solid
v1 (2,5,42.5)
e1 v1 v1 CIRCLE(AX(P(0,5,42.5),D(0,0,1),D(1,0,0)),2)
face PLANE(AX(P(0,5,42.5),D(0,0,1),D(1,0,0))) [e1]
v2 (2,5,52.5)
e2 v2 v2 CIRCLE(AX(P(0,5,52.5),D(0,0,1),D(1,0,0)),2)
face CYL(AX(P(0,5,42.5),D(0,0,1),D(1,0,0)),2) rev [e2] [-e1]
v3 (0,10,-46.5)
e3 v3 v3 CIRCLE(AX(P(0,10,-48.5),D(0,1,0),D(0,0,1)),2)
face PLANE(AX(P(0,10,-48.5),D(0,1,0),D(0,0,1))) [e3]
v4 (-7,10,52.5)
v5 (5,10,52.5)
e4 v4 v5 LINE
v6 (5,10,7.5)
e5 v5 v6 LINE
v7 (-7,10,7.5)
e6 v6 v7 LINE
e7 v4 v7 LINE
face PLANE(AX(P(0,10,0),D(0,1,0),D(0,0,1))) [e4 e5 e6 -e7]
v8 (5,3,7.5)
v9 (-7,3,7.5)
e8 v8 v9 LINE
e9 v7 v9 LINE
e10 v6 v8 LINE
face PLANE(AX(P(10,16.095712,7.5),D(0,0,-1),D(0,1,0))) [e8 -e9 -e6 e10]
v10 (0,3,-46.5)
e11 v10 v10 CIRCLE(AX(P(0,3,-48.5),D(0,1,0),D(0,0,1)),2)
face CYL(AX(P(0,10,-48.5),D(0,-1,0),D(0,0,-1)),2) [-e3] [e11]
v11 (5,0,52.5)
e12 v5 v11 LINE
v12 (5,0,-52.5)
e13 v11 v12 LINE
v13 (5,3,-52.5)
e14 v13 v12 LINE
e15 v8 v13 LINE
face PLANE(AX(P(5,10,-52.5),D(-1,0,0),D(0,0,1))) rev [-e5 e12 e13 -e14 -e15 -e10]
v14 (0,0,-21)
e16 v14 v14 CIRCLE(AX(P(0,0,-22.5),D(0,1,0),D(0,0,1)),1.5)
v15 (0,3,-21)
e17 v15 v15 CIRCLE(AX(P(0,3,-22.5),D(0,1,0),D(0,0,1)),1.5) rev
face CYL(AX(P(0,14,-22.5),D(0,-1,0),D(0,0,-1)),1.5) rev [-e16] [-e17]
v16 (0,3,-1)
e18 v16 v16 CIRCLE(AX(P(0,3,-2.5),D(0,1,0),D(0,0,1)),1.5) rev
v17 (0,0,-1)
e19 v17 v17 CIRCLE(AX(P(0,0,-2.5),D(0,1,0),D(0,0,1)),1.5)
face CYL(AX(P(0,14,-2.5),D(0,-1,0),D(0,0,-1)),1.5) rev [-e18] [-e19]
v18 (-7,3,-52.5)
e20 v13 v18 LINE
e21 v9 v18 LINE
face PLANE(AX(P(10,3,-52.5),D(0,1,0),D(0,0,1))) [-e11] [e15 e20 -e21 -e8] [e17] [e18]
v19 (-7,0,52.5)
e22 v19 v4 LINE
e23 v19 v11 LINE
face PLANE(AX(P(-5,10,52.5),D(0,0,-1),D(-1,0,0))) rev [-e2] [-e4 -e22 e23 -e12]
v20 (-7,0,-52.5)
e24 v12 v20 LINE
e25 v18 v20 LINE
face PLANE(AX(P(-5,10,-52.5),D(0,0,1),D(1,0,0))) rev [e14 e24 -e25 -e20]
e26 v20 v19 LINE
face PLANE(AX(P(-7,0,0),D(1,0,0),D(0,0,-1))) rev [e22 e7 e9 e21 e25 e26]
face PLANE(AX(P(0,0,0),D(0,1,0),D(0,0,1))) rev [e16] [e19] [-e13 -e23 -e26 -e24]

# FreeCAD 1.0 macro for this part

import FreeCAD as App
import Part
import Sketcher

V = App.Vector
Q = App.Units.Quantity

doc = App.newDocument("Part")
body = doc.addObject("PartDesign::Body", "Body")

# Sketch on XZ plane
sketch1 = body.newObject("Sketcher::SketchObject", "Sketch")
sketch1.AttachmentSupport = (doc.getObject("XZ_Plane"), [""])
sketch1.MapMode = "FlatFace"
sketch1.addGeometry(Part.LineSegment(V(-5, -52.5, 0), V(-5, 52.5, 0)), False)
sketch1.addGeometry(Part.LineSegment(V(-5, 52.5, 0), V(5, 52.5, 0)), False)
sketch1.addGeometry(Part.LineSegment(V(5, 52.5, 0), V(5, -52.5, 0)), False)
sketch1.addGeometry(Part.LineSegment(V(5, -52.5, 0), V(-5, -52.5, 0)), False)
sketch1.addConstraint(Sketcher.Constraint("Coincident", 0, 2, 1, 1))
sketch1.addConstraint(Sketcher.Constraint("Coincident", 1, 2, 2, 1))
sketch1.addConstraint(Sketcher.Constraint("Coincident", 2, 2, 3, 1))
sketch1.addConstraint(Sketcher.Constraint("Coincident", 3, 2, 0, 1))
sketch1.addConstraint(Sketcher.Constraint("Vertical", 0))
sketch1.addConstraint(Sketcher.Constraint("Horizontal", 1))
sketch1.addConstraint(Sketcher.Constraint("Vertical", 2))
sketch1.addConstraint(Sketcher.Constraint("Horizontal", 3))
sketch1.addConstraint(Sketcher.Constraint("Symmetric", 0, 2, 2, 2, -1, 1))
sketch1.addConstraint(Sketcher.Constraint("DistanceX", 1, 1, 1, 2, Q("10 mm")))
sketch1.addConstraint(Sketcher.Constraint("DistanceY", 0, 1, 0, 2, Q("105 mm")))
pad1 = body.newObject("PartDesign::Pad", "Pad")
pad1.Profile = sketch1
pad1.Length = 10
pad1.Reversed = True

# Sketch on YZ plane
sketch2 = body.newObject("Sketcher::SketchObject", "Sketch001")
sketch2.AttachmentSupport = (doc.getObject("YZ_Plane"), [""])
sketch2.MapMode = "FlatFace"
sketch2.addGeometry(Part.LineSegment(V(16.095712, 7.5, 0), V(3, 7.5, 0)), False)
sketch2.addGeometry(Part.LineSegment(V(3, 7.5, 0), V(3, -52.5, 0)), False)
sketch2.addGeometry(Part.LineSegment(V(3, -52.5, 0), V(16.095712, -52.5, 0)), False)
sketch2.addGeometry(Part.LineSegment(V(16.095712, -52.5, 0), V(16.095712, 7.5, 0)), False)
sketch2.addConstraint(Sketcher.Constraint("Coincident", 0, 2, 1, 1))
sketch2.addConstraint(Sketcher.Constraint("Coincident", 1, 2, 2, 1))
sketch2.addConstraint(Sketcher.Constraint("Coincident", 2, 2, 3, 1))
sketch2.addConstraint(Sketcher.Constraint("Coincident", 3, 2, 0, 1))
sketch2.addConstraint(Sketcher.Constraint("Horizontal", 0))
sketch2.addConstraint(Sketcher.Constraint("Vertical", 1))
sketch2.addConstraint(Sketcher.Constraint("Horizontal", 2))
sketch2.addConstraint(Sketcher.Constraint("Vertical", 3))
sketch2.addConstraint(Sketcher.Constraint("DistanceY", 1, 2, 1, 1, Q("60 mm")))
sketch2.addConstraint(Sketcher.Constraint("DistanceX", -1, 1, 0, 2, Q("3 mm")))
sketch2.addConstraint(Sketcher.Constraint("DistanceY", -1, 1, 0, 2, Q("7.5 mm")))
sketch2.addConstraint(Sketcher.Constraint("DistanceX", 0, 2, 0, 1, Q("13.095712 mm")))
pocket1 = body.newObject("PartDesign::Pocket", "Pocket")
pocket1.Profile = sketch2
pocket1.Type = "ThroughAll"
pocket1.Midplane = True

# Sketch on XZ plane
sketch3 = body.newObject("Sketcher::SketchObject", "Sketch002")
sketch3.AttachmentSupport = (doc.getObject("XZ_Plane"), [""])
sketch3.MapMode = "FlatFace"
sketch3.AttachmentOffset = App.Placement(V(0, 0, -3), App.Rotation())
sketch3.addGeometry(Part.Circle(V(0, -48.5, 0), V(0, 0, 1), 2), False)
sketch3.addConstraint(Sketcher.Constraint("PointOnObject", 0, 3, -2))
sketch3.addConstraint(Sketcher.Constraint("Diameter", 0, Q("4 mm")))
sketch3.addConstraint(Sketcher.Constraint("DistanceY", 0, 3, -1, 1, Q("48.5 mm")))
pad2 = body.newObject("PartDesign::Pad", "Pad001")
pad2.Profile = sketch3
pad2.Length = 7
pad2.Reversed = True

# Sketch on XZ plane
sketch4 = body.newObject("Sketcher::SketchObject", "Sketch003")
sketch4.AttachmentSupport = (doc.getObject("XZ_Plane"), [""])
sketch4.MapMode = "FlatFace"
sketch4.addGeometry(Part.Circle(V(0, -2.5, 0), V(0, 0, 1), 1.5), False)
sketch4.addGeometry(Part.Circle(V(0, -22.5, 0), V(0, 0, 1), 1.5), False)
sketch4.addConstraint(Sketcher.Constraint("Equal", 0, 1))
sketch4.addConstraint(Sketcher.Constraint("PointOnObject", 0, 3, -2))
sketch4.addConstraint(Sketcher.Constraint("PointOnObject", 1, 3, -2))
sketch4.addConstraint(Sketcher.Constraint("Diameter", 0, Q("3 mm")))
sketch4.addConstraint(Sketcher.Constraint("DistanceY", 1, 3, 0, 3, Q("20 mm")))
sketch4.addConstraint(Sketcher.Constraint("DistanceY", 0, 3, -1, 1, Q("2.5 mm")))
pocket2 = body.newObject("PartDesign::Pocket", "Pocket001")
pocket2.Profile = sketch4
pocket2.Length = 14

# Sketch on XY plane
sketch5 = body.newObject("Sketcher::SketchObject", "Sketch004")
sketch5.AttachmentSupport = (doc.getObject("XY_Plane"), [""])
sketch5.MapMode = "FlatFace"
sketch5.AttachmentOffset = App.Placement(V(0, 0, 52.5), App.Rotation())
sketch5.addGeometry(Part.Circle(V(0, 5, 0), V(0, 0, 1), 2), False)
sketch5.addConstraint(Sketcher.Constraint("PointOnObject", 0, 3, -2))
sketch5.addConstraint(Sketcher.Constraint("Diameter", 0, Q("4 mm")))
sketch5.addConstraint(Sketcher.Constraint("DistanceY", -1, 1, 0, 3, Q("5 mm")))
pocket3 = body.newObject("PartDesign::Pocket", "Pocket002")
pocket3.Profile = sketch5
pocket3.Length = 10

# Sketch on YZ plane
sketch6 = body.newObject("Sketcher::SketchObject", "Sketch005")
sketch6.AttachmentSupport = (doc.getObject("YZ_Plane"), [""])
sketch6.MapMode = "FlatFace"
sketch6.AttachmentOffset = App.Placement(V(0, 0, -5), App.Rotation())
sketch6.addGeometry(Part.LineSegment(V(10, 52.5, 0), V(10, 7.5, 0)), False)
sketch6.addGeometry(Part.LineSegment(V(10, 7.5, 0), V(3, 7.5, 0)), False)
sketch6.addGeometry(Part.LineSegment(V(3, 7.5, 0), V(3, -52.5, 0)), False)
sketch6.addGeometry(Part.LineSegment(V(3, -52.5, 0), V(0, -52.5, 0)), False)
sketch6.addGeometry(Part.LineSegment(V(0, -52.5, 0), V(0, 52.5, 0)), False)
sketch6.addGeometry(Part.LineSegment(V(0, 52.5, 0), V(10, 52.5, 0)), False)
sketch6.addConstraint(Sketcher.Constraint("Coincident", 0, 2, 1, 1))
sketch6.addConstraint(Sketcher.Constraint("Coincident", 1, 2, 2, 1))
sketch6.addConstraint(Sketcher.Constraint("Coincident", 2, 2, 3, 1))
sketch6.addConstraint(Sketcher.Constraint("Coincident", 3, 2, 4, 1))
sketch6.addConstraint(Sketcher.Constraint("Coincident", 4, 2, 5, 1))
sketch6.addConstraint(Sketcher.Constraint("Coincident", 5, 2, 0, 1))
sketch6.addConstraint(Sketcher.Constraint("Vertical", 0))
sketch6.addConstraint(Sketcher.Constraint("Horizontal", 1))
sketch6.addConstraint(Sketcher.Constraint("Vertical", 2))
sketch6.addConstraint(Sketcher.Constraint("Horizontal", 3))
sketch6.addConstraint(Sketcher.Constraint("Vertical", 4))
sketch6.addConstraint(Sketcher.Constraint("Horizontal", 5))
sketch6.addConstraint(Sketcher.Constraint("Symmetric", 3, 2, 4, 2, -1, 1))
sketch6.addConstraint(Sketcher.Constraint("DistanceX", 1, 2, 1, 1, Q("7 mm")))
sketch6.addConstraint(Sketcher.Constraint("DistanceX", 3, 2, 3, 1, Q("3 mm")))
sketch6.addConstraint(Sketcher.Constraint("DistanceY", 0, 2, 0, 1, Q("45 mm")))
sketch6.addConstraint(Sketcher.Constraint("DistanceY", 2, 2, 2, 1, Q("60 mm")))
pad3 = body.newObject("PartDesign::Pad", "Pad002")
pad3.Profile = sketch6
pad3.Length = 2
pad3.Reversed = True

doc.recompute()
